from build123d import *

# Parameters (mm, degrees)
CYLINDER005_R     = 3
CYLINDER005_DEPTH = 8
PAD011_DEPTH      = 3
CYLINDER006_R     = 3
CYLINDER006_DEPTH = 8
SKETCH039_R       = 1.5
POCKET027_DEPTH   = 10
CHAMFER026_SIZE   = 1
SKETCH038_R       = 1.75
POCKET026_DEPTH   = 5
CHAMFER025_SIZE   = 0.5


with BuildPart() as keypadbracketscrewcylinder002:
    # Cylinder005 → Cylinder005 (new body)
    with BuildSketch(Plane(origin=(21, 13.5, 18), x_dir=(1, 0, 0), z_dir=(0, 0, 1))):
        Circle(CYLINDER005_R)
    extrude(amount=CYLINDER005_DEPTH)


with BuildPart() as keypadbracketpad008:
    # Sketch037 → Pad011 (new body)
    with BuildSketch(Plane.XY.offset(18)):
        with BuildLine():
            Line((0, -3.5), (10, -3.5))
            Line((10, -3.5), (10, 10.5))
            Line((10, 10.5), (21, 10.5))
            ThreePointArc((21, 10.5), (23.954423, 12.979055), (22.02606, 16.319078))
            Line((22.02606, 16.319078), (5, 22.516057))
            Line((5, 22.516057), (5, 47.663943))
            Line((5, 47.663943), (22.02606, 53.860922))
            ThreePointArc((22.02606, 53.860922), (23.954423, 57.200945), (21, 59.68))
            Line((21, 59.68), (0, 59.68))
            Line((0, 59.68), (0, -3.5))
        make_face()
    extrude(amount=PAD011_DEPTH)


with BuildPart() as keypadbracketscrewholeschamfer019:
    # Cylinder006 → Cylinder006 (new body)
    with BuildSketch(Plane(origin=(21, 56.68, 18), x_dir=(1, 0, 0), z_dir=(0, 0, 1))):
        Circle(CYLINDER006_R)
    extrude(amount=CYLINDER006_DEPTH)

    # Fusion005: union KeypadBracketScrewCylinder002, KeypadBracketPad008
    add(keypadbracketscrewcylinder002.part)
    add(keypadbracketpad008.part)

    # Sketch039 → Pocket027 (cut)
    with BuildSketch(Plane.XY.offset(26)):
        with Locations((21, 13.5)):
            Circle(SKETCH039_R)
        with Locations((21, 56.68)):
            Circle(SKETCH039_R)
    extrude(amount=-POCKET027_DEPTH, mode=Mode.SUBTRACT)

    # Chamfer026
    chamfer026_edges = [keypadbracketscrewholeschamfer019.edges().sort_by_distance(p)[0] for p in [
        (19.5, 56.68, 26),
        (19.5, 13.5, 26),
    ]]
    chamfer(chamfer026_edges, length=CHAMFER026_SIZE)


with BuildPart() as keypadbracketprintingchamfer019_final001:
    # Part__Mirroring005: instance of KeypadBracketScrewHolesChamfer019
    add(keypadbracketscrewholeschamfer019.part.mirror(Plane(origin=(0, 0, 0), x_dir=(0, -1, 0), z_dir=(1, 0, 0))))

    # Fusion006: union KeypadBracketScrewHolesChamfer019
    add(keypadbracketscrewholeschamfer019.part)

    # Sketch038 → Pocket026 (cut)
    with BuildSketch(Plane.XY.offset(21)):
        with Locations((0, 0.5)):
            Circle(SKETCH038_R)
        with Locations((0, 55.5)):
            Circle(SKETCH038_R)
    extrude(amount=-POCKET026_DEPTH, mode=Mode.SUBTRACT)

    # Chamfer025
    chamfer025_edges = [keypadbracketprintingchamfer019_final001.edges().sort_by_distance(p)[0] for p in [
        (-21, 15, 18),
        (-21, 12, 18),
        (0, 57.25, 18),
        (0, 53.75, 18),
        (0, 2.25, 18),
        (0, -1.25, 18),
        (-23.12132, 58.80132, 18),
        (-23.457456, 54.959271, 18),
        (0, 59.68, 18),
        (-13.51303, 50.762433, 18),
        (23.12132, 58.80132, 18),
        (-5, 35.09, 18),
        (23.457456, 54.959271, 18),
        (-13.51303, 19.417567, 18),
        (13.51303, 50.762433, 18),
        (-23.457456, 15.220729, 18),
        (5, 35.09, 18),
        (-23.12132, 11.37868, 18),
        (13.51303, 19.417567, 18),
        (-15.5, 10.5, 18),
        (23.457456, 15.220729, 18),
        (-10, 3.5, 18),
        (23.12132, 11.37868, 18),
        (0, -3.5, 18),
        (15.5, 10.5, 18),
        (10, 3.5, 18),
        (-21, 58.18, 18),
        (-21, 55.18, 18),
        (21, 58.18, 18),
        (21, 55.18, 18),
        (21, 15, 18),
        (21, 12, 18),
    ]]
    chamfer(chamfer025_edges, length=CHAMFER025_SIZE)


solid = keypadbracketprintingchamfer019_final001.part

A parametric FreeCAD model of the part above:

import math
import FreeCAD as App
import Part
import Sketcher
Q = App.Units.Quantity


def edges_at(feature, points):
    """Names of the edges that pass closest to the given points."""
    edges = feature.Shape.Edges
    near = lambda p: min(range(len(edges)), key=lambda i: edges[i].distToShape(Part.Vertex(*p))[0])
    return sorted({f"Edge{near(p) + 1}" for p in points})

doc = App.newDocument("Part")
body = doc.addObject("PartDesign::Body", "Body")

sketch1 = doc.addObject("Sketcher::SketchObject", "Sketch")
body.addObject(sketch1)
sketch1.AttachmentSupport = (doc.XY_Plane, [""])
sketch1.MapMode = "FlatFace"
sketch1.AttachmentOffset = App.Placement(App.Vector(0, 0, 18), App.Rotation())
sketch1.addGeometry(Part.Circle(App.Vector(21, 13.5, 0), App.Vector(0, 0, 1), 3), False)
sketch1.addConstraint([
    Sketcher.Constraint("Diameter", 0, 6.0),
    Sketcher.Constraint("DistanceX", -1, 1, 0, 3, 21.0),
    Sketcher.Constraint("DistanceY", -1, 1, 0, 3, 13.5),
])
pad1 = doc.addObject("PartDesign::Pad", "Pad")
body.addObject(pad1)
pad1.Profile = sketch1
pad1.Length = 8
body2 = doc.addObject("PartDesign::Body", "Body001")

sketch2 = doc.addObject("Sketcher::SketchObject", "Sketch001")
body2.addObject(sketch2)
sketch2.AttachmentSupport = (doc.getObject("XY_Plane001"), [""])
sketch2.MapMode = "FlatFace"
sketch2.AttachmentOffset = App.Placement(App.Vector(0, 0, 18), App.Rotation())
sketch2.addGeometry([
    Part.LineSegment(App.Vector(0, -3.5, 0), App.Vector(10, -3.5, 0)),
    Part.LineSegment(App.Vector(10, -3.5, 0), App.Vector(10, 10.5, 0)),
    Part.LineSegment(App.Vector(10, 10.5, 0), App.Vector(21, 10.5, 0)),
    Part.ArcOfCircle(Part.Circle(App.Vector(21, 13.5, 0), App.Vector(0, 0, 1), 3), math.radians(-90), math.radians(70)),
    Part.LineSegment(App.Vector(22, 16.3, 0), App.Vector(5, 22.5, 0)),
    Part.LineSegment(App.Vector(5, 22.5, 0), App.Vector(5, 47.7, 0)),
    Part.LineSegment(App.Vector(5, 47.7, 0), App.Vector(22, 53.9, 0)),
    Part.ArcOfCircle(Part.Circle(App.Vector(21, 56.7, 0), App.Vector(0, 0, 1), 3), math.radians(-70), math.radians(90)),
    Part.LineSegment(App.Vector(21, 59.7, 0), App.Vector(0, 59.7, 0)),
    Part.LineSegment(App.Vector(0, 59.7, 0), App.Vector(0, -3.5, 0)),
], False)
sketch2.addConstraint([
    Sketcher.Constraint("Coincident", 0, 2, 1, 1),
    Sketcher.Constraint("Coincident", 1, 2, 2, 1),
    Sketcher.Constraint("Tangent", 2, 2, 3, 1),
    Sketcher.Constraint("Tangent", 3, 2, 4, 1),
    Sketcher.Constraint("Coincident", 4, 2, 5, 1),
    Sketcher.Constraint("Coincident", 5, 2, 6, 1),
    Sketcher.Constraint("Tangent", 6, 2, 7, 1),
    Sketcher.Constraint("Tangent", 7, 2, 8, 1),
    Sketcher.Constraint("Coincident", 8, 2, 9, 1),
    Sketcher.Constraint("Coincident", 9, 2, 0, 1),
    Sketcher.Constraint("Horizontal", 0),
    Sketcher.Constraint("Vertical", 1),
    Sketcher.Constraint("Horizontal", 2),
    Sketcher.Constraint("Vertical", 5),
    Sketcher.Constraint("Horizontal", 8),
    Sketcher.Constraint("Vertical", 9),
    Sketcher.Constraint("Equal", 3, 7),
    Sketcher.Constraint("PointOnObject", 8, 2, -2),
    Sketcher.Constraint("Vertical", 3, 3, 7, 3),
    Sketcher.Constraint("Vertical", 3, 2, 6, 2),
    Sketcher.Constraint("Radius", 3, 3.0),
    Sketcher.Constraint("DistanceX", 0, 1, 0, 2, 10.0),
    Sketcher.Constraint("DistanceX", 2, 1, 2, 2, 11.0),
    Sketcher.Constraint("DistanceY", 1, 1, 1, 2, 14.0),
    Sketcher.Constraint("Angle", 4, Q("160 deg")),
    Sketcher.Constraint("DistanceX", -1, 1, 4, 2, 5.0),
    Sketcher.Constraint("DistanceY", 9, 2, 9, 1, 63.18),
    Sketcher.Constraint("DistanceY", -1, 1, 3, 3, 13.5),
])
pad2 = doc.addObject("PartDesign::Pad", "Pad001")
body2.addObject(pad2)
pad2.Profile = sketch2
pad2.Length = 3
body3 = doc.addObject("PartDesign::Body", "Body002")
body3.AllowCompound = True

sketch3 = doc.addObject("Sketcher::SketchObject", "Sketch002")
body3.addObject(sketch3)
sketch3.AttachmentSupport = (doc.getObject("XY_Plane002"), [""])
sketch3.MapMode = "FlatFace"
sketch3.AttachmentOffset = App.Placement(App.Vector(0, 0, 18), App.Rotation())
sketch3.addGeometry(Part.Circle(App.Vector(21, 56.7, 0), App.Vector(0, 0, 1), 3), False)
sketch3.addConstraint([
    Sketcher.Constraint("Diameter", 0, 6.0),
    Sketcher.Constraint("DistanceX", -1, 1, 0, 3, 21.0),
    Sketcher.Constraint("DistanceY", -1, 1, 0, 3, 56.68),
])
pad3 = doc.addObject("PartDesign::Pad", "Pad002")
body3.addObject(pad3)
pad3.Profile = sketch3
pad3.Length = 8
doc.recompute()

boolean = doc.addObject("PartDesign::Boolean", "Boolean")
body3.addObject(boolean)
boolean.Type = "Fuse"
boolean.addObjects([body])
doc.recompute()

boolean2 = doc.addObject("PartDesign::Boolean", "Boolean001")
body3.addObject(boolean2)
boolean2.Type = "Fuse"
boolean2.addObjects([body2])

sketch4 = doc.addObject("Sketcher::SketchObject", "Sketch003")
body3.addObject(sketch4)
sketch4.AttachmentSupport = (doc.getObject("XY_Plane002"), [""])
sketch4.MapMode = "FlatFace"
sketch4.AttachmentOffset = App.Placement(App.Vector(0, 0, 26), App.Rotation())
sketch4.addGeometry([
    Part.Circle(App.Vector(21, 13.5, 0), App.Vector(0, 0, 1), 1.5),
    Part.Circle(App.Vector(21, 56.7, 0), App.Vector(0, 0, 1), 1.5),
], False)
sketch4.addConstraint([
    Sketcher.Constraint("Equal", 0, 1),
    Sketcher.Constraint("Vertical", 0, 3, 1, 3),
    Sketcher.Constraint("Diameter", 0, 3.0),
    Sketcher.Constraint("DistanceX", -1, 1, 0, 3, 21.0),
    Sketcher.Constraint("DistanceY", -1, 1, 0, 3, 13.5),
    Sketcher.Constraint("DistanceY", -1, 1, 1, 3, 56.68),
])
pocket1 = doc.addObject("PartDesign::Pocket", "Pocket")
body3.addObject(pocket1)
pocket1.Profile = sketch4
pocket1.Length = 10
doc.recompute()

chamfer = doc.addObject("PartDesign::Chamfer", "Chamfer")
body3.addObject(chamfer)
chamfer.Base = (pocket1, edges_at(pocket1, [(19.5, 56.68, 26), (19.5, 13.5, 26)]))
chamfer.Size = 1
body4 = doc.addObject("PartDesign::Body", "Body003")
doc.recompute()

mirroring = doc.addObject("Part::Mirroring", "Mirroring")
mirroring.Source = body3
mirroring.Base = App.Vector(0, 0, 0)
mirroring.Normal = App.Vector(1, 0, 0)
body4.BaseFeature = mirroring
doc.recompute()

boolean3 = doc.addObject("PartDesign::Boolean", "Boolean002")
body4.addObject(boolean3)
boolean3.Type = "Fuse"
boolean3.addObjects([body3])

sketch5 = doc.addObject("Sketcher::SketchObject", "Sketch004")
body4.addObject(sketch5)
sketch5.AttachmentSupport = (doc.getObject("XY_Plane003"), [""])
sketch5.MapMode = "FlatFace"
sketch5.AttachmentOffset = App.Placement(App.Vector(0, 0, 21), App.Rotation())
sketch5.addGeometry([
    Part.Circle(App.Vector(0, 0.5, 0), App.Vector(0, 0, 1), 1.8),
    Part.Circle(App.Vector(0, 55.5, 0), App.Vector(0, 0, 1), 1.8),
], False)
sketch5.addConstraint([
    Sketcher.Constraint("Equal", 0, 1),
    Sketcher.Constraint("PointOnObject", 0, 3, -2),
    Sketcher.Constraint("PointOnObject", 1, 3, -2),
    Sketcher.Constraint("Diameter", 0, 3.5),
    Sketcher.Constraint("DistanceY", 0, 3, 1, 3, 55.0),
    Sketcher.Constraint("DistanceY", -1, 1, 0, 3, 0.5),
])
pocket2 = doc.addObject("PartDesign::Pocket", "Pocket001")
body4.addObject(pocket2)
pocket2.Profile = sketch5
pocket2.Length = 5
doc.recompute()

chamfer2 = doc.addObject("PartDesign::Chamfer", "Chamfer001")
body4.addObject(chamfer2)
chamfer2.Base = (pocket2, edges_at(pocket2, [
    (-19.5, 13.5, 18),
    (-19.5, 13.5, 18),
    (-1.75, 55.5, 18),
    (-1.75, 55.5, 18),
    (-1.75, 0.5, 18),
    (-1.75, 0.5, 18),
    (-23.121, 58.801, 18),
    (-23.457, 54.959, 18),
    (0, 59.68, 18),
    (-13.513, 50.762, 18),
    (23.121, 58.801, 18),
    (-5, 35.09, 18),
    (23.457, 54.959, 18),
    (-13.513, 19.418, 18),
    (13.513, 50.762, 18),
    (-23.457, 15.221, 18),
    (5, 35.09, 18),
    (-23.121, 11.379, 18),
    (13.513, 19.418, 18),
    (-15.5, 10.5, 18),
    (23.457, 15.221, 18),
    (-10, 3.5, 18),
    (23.121, 11.379, 18),
    (0, -3.5, 18),
    (15.5, 10.5, 18),
    (10, 3.5, 18),
    (-19.5, 56.68, 18),
    (-19.5, 56.68, 18),
    (19.5, 56.68, 18),
    (19.5, 56.68, 18),
    (19.5, 13.5, 18),
    (19.5, 13.5, 18),
]))
chamfer2.Size = 0.5
mirroring.Visibility = False

doc.recompute()
